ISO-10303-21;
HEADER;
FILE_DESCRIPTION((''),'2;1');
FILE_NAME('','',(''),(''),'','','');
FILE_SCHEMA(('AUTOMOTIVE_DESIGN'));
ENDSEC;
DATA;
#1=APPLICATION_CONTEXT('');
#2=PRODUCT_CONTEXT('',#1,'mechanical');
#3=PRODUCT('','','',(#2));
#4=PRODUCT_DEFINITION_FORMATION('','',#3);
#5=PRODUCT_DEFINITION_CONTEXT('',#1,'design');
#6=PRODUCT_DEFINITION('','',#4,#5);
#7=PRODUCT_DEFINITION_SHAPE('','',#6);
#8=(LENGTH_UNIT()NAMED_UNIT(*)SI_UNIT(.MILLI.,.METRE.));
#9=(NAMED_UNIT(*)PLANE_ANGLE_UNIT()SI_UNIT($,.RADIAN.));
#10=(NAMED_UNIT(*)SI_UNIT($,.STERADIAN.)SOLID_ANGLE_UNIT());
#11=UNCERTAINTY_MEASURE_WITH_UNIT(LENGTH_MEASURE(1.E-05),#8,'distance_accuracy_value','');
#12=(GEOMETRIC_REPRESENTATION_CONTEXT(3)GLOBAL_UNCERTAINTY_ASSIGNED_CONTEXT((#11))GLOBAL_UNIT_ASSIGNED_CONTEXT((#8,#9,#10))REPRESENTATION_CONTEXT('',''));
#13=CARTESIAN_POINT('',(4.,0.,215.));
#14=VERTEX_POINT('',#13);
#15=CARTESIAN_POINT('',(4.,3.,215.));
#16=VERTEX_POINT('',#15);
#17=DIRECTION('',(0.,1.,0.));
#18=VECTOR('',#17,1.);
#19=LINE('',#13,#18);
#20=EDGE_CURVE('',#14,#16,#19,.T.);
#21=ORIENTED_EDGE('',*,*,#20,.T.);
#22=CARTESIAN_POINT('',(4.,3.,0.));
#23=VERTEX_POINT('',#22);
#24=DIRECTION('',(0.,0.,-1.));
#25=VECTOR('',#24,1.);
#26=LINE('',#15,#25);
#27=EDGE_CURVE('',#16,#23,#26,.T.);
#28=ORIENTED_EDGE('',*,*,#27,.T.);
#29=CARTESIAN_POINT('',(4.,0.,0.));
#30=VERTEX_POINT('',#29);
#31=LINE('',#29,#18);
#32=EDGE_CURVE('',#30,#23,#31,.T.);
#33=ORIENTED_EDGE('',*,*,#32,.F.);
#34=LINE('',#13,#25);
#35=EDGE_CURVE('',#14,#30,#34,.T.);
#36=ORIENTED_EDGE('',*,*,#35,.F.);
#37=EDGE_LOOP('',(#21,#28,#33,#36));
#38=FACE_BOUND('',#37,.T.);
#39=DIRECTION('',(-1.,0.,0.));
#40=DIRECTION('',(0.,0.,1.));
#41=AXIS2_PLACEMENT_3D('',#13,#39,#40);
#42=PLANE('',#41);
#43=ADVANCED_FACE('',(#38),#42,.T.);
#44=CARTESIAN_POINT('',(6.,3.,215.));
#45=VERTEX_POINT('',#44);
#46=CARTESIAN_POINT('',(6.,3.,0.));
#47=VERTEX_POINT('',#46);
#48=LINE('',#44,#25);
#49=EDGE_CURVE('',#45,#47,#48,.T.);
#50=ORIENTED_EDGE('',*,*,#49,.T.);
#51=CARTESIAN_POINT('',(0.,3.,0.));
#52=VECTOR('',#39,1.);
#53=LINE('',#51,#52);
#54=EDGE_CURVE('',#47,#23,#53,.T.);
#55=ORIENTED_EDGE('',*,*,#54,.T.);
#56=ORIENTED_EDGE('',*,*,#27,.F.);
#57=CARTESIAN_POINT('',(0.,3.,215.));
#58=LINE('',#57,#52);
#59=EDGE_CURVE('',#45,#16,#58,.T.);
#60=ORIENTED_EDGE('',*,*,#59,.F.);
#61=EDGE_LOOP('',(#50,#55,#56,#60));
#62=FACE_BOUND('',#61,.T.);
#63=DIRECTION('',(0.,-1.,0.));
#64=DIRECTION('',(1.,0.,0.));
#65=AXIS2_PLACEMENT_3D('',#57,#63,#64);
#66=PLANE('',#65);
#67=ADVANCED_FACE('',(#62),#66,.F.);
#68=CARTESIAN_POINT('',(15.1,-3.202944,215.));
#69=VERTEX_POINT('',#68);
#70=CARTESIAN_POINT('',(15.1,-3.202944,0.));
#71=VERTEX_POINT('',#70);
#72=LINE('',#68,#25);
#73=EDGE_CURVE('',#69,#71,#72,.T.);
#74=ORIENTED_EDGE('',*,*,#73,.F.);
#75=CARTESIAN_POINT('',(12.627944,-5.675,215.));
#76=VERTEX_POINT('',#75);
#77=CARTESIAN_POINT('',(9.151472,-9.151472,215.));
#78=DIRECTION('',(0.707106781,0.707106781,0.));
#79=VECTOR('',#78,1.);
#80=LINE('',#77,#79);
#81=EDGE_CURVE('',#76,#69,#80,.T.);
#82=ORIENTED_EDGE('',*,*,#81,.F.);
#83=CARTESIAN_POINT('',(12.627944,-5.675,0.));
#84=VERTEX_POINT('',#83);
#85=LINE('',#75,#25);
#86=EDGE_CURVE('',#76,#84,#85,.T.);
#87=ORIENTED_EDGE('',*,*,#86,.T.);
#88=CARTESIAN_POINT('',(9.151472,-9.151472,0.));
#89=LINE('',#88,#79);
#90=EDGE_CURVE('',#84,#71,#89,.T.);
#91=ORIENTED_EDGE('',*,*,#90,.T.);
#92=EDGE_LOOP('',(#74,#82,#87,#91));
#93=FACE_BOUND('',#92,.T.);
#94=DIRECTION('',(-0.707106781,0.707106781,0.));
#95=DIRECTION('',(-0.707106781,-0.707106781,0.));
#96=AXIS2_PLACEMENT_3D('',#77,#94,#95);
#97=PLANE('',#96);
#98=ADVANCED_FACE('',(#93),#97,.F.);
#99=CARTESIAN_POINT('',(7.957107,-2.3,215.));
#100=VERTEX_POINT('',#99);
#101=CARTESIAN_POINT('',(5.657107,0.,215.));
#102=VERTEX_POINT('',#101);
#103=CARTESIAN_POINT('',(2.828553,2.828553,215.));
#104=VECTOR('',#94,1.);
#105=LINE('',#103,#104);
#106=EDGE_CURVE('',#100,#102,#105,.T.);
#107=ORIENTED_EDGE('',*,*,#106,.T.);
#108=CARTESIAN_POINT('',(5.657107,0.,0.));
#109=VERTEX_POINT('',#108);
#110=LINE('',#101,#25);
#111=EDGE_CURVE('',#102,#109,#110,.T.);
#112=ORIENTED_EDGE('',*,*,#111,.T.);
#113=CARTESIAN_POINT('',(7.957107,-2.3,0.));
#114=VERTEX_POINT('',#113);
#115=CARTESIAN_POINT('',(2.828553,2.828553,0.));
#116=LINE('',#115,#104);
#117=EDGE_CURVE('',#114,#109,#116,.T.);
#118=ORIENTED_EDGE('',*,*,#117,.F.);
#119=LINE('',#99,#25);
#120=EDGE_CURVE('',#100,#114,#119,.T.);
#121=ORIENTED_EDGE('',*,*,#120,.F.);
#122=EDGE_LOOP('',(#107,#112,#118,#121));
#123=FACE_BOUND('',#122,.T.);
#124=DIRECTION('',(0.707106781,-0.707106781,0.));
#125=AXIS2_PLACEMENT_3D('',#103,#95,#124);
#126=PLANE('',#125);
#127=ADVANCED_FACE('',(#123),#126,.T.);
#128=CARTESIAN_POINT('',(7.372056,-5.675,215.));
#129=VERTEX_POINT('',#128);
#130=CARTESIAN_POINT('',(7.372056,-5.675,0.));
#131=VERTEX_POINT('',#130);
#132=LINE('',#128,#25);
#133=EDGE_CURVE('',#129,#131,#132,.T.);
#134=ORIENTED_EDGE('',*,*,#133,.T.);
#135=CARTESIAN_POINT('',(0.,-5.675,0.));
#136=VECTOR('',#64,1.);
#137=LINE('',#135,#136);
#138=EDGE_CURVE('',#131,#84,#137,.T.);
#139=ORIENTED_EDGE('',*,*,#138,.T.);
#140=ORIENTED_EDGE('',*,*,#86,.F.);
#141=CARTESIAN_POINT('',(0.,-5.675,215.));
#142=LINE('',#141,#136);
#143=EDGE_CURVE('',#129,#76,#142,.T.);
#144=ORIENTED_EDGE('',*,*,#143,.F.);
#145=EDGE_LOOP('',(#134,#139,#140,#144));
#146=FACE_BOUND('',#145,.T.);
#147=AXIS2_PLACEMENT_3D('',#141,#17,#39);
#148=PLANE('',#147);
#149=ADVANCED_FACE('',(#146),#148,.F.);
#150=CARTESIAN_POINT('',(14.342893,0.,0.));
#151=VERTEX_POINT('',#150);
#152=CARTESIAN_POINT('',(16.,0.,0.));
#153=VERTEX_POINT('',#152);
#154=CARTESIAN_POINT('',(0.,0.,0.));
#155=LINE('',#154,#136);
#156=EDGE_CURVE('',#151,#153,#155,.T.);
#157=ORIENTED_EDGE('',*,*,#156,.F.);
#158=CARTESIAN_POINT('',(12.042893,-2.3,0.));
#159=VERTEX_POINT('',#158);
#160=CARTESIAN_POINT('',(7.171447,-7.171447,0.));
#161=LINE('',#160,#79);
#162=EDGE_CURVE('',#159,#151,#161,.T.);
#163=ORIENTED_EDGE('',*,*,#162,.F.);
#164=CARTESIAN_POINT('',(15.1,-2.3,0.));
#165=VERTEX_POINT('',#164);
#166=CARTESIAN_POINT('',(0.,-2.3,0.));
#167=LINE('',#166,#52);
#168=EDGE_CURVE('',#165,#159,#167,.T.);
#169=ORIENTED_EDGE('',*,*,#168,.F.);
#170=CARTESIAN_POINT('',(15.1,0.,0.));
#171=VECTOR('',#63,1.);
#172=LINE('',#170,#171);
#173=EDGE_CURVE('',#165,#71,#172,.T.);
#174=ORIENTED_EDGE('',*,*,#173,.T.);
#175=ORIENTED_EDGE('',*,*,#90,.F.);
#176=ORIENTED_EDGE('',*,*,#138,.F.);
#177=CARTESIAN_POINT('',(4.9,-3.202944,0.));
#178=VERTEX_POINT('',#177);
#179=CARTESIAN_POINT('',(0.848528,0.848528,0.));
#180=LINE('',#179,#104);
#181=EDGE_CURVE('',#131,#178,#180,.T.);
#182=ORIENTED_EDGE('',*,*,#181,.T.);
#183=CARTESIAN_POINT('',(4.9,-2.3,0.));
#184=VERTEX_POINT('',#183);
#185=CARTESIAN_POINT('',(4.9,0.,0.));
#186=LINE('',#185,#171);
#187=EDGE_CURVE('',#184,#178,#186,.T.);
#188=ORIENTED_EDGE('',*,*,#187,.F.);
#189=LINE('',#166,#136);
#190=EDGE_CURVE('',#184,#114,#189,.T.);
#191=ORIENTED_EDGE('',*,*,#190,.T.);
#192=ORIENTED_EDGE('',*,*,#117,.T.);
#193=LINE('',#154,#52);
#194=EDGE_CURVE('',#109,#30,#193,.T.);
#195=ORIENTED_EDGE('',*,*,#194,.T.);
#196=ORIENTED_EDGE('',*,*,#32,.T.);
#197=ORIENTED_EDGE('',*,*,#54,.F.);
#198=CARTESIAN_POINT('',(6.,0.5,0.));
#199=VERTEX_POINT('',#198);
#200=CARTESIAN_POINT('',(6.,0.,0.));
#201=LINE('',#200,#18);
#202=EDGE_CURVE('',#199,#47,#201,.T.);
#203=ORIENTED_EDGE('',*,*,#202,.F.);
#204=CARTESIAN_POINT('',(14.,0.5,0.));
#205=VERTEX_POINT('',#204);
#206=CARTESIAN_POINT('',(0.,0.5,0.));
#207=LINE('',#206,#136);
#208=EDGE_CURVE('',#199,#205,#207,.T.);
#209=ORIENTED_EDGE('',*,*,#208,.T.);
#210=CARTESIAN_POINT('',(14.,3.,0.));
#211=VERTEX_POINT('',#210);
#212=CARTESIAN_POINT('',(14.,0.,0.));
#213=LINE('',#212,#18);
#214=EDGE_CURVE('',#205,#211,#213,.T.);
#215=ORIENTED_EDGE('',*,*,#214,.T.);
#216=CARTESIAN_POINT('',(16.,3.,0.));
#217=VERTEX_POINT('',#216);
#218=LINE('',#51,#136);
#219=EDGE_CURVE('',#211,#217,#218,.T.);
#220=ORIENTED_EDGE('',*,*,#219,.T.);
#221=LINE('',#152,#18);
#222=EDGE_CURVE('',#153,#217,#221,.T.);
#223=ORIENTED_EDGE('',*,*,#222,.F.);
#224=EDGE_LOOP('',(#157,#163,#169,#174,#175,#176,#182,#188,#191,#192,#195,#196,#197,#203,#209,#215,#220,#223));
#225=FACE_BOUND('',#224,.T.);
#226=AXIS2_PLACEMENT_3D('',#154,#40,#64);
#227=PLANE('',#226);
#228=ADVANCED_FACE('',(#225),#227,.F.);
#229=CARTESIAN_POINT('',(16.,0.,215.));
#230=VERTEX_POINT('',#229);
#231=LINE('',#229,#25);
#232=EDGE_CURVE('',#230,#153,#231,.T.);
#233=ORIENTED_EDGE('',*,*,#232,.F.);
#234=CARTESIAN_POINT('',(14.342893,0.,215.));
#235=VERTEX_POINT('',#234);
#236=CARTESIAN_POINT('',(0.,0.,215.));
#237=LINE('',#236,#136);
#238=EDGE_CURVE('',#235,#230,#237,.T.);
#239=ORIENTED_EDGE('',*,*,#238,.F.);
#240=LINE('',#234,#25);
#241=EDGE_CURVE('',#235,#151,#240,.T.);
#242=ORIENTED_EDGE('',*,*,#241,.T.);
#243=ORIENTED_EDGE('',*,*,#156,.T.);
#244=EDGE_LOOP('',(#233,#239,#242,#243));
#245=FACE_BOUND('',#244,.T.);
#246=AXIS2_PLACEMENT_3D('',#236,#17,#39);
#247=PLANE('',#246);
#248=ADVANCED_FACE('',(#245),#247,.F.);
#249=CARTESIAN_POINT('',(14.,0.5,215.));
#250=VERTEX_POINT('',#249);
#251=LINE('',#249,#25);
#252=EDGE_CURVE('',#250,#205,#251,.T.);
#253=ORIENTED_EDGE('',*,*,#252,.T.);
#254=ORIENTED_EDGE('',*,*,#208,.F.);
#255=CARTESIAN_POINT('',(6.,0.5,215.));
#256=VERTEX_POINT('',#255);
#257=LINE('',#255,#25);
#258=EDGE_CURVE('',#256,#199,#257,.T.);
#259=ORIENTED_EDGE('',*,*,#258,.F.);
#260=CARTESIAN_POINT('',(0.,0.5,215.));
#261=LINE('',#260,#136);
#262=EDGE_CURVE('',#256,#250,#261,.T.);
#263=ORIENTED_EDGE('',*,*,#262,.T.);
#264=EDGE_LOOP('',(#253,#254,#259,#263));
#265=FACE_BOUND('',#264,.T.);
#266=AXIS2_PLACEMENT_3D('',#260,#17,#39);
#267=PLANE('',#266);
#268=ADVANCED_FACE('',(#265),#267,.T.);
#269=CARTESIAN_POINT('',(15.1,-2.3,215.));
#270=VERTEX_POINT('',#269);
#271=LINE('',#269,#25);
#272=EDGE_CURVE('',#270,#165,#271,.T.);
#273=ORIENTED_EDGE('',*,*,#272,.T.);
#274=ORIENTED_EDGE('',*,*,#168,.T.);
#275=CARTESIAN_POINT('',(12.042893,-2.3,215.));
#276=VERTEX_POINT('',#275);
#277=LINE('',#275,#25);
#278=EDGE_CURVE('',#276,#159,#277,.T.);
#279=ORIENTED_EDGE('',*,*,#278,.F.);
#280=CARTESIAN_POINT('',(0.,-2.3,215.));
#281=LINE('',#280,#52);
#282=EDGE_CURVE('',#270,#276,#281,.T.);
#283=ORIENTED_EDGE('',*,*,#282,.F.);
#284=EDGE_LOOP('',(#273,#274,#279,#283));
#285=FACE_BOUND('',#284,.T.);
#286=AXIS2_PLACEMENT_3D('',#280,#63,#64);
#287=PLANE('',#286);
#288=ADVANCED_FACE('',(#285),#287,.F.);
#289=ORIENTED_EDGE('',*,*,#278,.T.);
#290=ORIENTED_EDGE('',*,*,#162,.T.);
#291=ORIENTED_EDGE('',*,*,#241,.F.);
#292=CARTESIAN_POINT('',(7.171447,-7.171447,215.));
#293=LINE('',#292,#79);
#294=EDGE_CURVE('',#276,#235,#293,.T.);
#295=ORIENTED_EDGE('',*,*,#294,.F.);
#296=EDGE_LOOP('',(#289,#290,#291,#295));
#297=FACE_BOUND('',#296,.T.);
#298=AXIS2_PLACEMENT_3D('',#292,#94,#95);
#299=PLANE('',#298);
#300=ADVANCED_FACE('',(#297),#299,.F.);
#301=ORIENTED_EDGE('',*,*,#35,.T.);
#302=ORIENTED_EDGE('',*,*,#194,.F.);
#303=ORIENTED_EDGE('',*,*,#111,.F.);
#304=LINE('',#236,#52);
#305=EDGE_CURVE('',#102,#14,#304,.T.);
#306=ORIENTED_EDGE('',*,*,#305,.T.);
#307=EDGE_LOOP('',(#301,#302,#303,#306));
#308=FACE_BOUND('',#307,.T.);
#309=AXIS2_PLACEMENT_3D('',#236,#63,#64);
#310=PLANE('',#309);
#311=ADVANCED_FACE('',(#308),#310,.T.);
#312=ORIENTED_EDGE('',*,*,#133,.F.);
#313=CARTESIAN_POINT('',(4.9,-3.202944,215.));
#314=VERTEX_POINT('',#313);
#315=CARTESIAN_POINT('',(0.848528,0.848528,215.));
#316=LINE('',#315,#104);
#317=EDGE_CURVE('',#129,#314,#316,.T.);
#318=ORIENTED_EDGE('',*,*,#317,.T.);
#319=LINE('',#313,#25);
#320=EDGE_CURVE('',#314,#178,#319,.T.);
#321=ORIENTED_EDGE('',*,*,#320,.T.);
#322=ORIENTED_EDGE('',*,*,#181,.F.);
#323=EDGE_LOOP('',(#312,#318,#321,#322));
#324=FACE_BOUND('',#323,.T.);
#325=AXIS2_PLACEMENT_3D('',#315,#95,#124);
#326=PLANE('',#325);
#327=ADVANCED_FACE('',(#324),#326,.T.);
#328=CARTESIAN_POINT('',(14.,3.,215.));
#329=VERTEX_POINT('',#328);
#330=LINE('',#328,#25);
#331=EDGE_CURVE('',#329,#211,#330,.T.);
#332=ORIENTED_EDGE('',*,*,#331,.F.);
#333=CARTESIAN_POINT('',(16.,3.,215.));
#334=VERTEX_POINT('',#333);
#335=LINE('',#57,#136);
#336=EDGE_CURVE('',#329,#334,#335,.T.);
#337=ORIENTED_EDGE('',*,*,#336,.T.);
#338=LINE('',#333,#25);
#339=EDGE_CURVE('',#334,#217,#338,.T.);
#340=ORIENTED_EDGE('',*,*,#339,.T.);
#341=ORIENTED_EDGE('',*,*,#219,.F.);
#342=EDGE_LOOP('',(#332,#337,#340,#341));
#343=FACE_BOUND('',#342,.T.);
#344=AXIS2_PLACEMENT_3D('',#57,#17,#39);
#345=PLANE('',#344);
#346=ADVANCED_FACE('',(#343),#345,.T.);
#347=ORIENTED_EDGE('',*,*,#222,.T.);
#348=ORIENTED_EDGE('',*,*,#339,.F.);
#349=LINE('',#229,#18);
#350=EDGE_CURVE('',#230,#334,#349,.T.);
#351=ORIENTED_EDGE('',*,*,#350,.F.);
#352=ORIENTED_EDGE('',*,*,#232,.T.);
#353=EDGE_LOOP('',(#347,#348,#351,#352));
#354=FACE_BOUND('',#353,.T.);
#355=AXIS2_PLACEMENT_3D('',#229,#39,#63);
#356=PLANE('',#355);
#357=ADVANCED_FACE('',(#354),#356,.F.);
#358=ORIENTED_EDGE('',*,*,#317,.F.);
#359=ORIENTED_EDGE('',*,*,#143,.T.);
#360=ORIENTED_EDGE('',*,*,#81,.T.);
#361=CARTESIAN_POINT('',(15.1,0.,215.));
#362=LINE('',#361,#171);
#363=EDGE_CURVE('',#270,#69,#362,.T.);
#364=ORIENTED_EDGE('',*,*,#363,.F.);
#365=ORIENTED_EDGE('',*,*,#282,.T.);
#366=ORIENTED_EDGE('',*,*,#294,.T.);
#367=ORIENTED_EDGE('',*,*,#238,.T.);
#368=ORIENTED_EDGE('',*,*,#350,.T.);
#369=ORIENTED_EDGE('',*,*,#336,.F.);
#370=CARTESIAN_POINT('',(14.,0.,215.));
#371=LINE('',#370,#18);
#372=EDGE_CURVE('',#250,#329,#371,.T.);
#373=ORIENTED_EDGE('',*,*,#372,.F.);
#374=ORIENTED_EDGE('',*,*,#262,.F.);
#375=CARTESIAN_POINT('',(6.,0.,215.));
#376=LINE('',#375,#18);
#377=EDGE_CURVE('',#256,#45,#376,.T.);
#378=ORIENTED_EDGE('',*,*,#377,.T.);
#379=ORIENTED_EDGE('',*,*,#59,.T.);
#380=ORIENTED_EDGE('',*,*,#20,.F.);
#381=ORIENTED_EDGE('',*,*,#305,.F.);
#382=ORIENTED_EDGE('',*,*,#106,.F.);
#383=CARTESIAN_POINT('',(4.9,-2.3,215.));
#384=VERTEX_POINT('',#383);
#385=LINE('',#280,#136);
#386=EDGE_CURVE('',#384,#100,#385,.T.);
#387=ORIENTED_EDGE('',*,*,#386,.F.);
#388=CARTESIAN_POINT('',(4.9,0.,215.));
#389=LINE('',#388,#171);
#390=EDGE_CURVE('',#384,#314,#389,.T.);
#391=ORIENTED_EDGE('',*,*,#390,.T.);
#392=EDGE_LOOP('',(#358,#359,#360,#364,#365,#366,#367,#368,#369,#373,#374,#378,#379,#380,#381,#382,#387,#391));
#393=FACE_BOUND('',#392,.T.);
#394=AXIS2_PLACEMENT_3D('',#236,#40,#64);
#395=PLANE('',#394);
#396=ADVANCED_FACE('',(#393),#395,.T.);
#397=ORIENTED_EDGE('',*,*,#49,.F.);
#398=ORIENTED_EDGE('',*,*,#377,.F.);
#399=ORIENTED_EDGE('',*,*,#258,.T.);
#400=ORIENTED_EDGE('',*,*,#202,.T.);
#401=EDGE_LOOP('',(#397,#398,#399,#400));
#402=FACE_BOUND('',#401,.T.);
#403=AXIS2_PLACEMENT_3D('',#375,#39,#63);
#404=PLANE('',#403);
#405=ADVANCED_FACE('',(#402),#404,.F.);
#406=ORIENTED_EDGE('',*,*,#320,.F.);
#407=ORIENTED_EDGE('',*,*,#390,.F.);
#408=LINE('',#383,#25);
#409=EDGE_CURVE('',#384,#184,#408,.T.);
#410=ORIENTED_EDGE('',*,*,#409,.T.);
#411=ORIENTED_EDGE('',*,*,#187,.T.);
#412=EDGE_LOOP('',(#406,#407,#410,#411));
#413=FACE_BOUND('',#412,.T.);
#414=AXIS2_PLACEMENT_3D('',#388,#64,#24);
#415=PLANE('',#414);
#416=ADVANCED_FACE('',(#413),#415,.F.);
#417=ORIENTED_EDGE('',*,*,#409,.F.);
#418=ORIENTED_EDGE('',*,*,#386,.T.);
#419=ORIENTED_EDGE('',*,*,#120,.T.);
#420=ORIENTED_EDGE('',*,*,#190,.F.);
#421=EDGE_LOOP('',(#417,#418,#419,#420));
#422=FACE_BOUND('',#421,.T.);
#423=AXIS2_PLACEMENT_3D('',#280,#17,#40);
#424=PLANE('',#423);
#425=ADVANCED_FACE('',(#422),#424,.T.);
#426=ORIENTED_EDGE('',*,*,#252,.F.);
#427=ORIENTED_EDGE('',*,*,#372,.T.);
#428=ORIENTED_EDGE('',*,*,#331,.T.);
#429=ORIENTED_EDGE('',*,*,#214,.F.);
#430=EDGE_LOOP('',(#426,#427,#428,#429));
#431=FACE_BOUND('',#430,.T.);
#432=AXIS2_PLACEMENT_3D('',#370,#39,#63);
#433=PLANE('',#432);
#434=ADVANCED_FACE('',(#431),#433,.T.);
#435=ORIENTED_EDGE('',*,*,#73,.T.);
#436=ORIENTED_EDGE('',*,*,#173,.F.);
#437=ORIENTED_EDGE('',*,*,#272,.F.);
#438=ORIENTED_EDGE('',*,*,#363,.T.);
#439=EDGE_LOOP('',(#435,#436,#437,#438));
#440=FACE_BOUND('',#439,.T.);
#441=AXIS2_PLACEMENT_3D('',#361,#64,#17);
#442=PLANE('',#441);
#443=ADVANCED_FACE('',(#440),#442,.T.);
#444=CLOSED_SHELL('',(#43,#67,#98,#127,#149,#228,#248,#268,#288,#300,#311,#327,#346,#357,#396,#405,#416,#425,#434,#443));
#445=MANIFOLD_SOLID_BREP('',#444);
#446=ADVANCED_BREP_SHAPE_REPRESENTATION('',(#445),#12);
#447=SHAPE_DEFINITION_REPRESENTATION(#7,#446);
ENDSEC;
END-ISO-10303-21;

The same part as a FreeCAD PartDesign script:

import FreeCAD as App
import Part
import Sketcher

V = App.Vector
Q = App.Units.Quantity

doc = App.newDocument("Part")
params = doc.addObject("Spreadsheet::Sheet", "Params")
for row, (alias, value) in enumerate([
    ("sketch1_width", "2 mm"),
    ("sketch1_width2", "8 mm"),
    ("sketch1_height", "3 mm"),
    ("sketch1_height2", "2.5 mm"),
    ("pad1_length", "215 mm"),
], start=1):
    params.set(f"A{row}", alias)
    params.set(f"B{row}", "=" + value)
    params.setAlias(f"B{row}", alias)

body = doc.addObject("PartDesign::Body", "Body")

# Sketch on XY plane
sketch1 = body.newObject("Sketcher::SketchObject", "Sketch")
sketch1.AttachmentSupport = (doc.getObject("XY_Plane"), [""])
sketch1.MapMode = "FlatFace"
sketch1.addGeometry(Part.LineSegment(V(7.372056, -5.675, 0), V(12.627944, -5.675, 0)), False)
sketch1.addGeometry(Part.LineSegment(V(12.627944, -5.675, 0), V(15.1, -3.202944, 0)), False)
sketch1.addGeometry(Part.LineSegment(V(15.1, -3.202944, 0), V(15.1, -2.3, 0)), False)
sketch1.addGeometry(Part.LineSegment(V(15.1, -2.3, 0), V(12.042893, -2.3, 0)), False)
sketch1.addGeometry(Part.LineSegment(V(12.042893, -2.3, 0), V(14.342893, 0, 0)), False)
sketch1.addGeometry(Part.LineSegment(V(14.342893, 0, 0), V(16, 0, 0)), False)
sketch1.addGeometry(Part.LineSegment(V(16, 0, 0), V(16, 3, 0)), False)
sketch1.addGeometry(Part.LineSegment(V(16, 3, 0), V(14, 3, 0)), False)
sketch1.addGeometry(Part.LineSegment(V(14, 3, 0), V(14, 0.5, 0)), False)
sketch1.addGeometry(Part.LineSegment(V(14, 0.5, 0), V(6, 0.5, 0)), False)
sketch1.addGeometry(Part.LineSegment(V(6, 0.5, 0), V(6, 3, 0)), False)
sketch1.addGeometry(Part.LineSegment(V(6, 3, 0), V(4, 3, 0)), False)
sketch1.addGeometry(Part.LineSegment(V(4, 3, 0), V(4, 0, 0)), False)
sketch1.addGeometry(Part.LineSegment(V(4, 0, 0), V(5.657107, 0, 0)), False)
sketch1.addGeometry(Part.LineSegment(V(5.657107, 0, 0), V(7.957107, -2.3, 0)), False)
sketch1.addGeometry(Part.LineSegment(V(7.957107, -2.3, 0), V(4.9, -2.3, 0)), False)
sketch1.addGeometry(Part.LineSegment(V(4.9, -2.3, 0), V(4.9, -3.202944, 0)), False)
sketch1.addGeometry(Part.LineSegment(V(4.9, -3.202944, 0), V(7.372056, -5.675, 0)), False)
sketch1.addConstraint(Sketcher.Constraint("Coincident", 0, 2, 1, 1))
sketch1.addConstraint(Sketcher.Constraint("Coincident", 1, 2, 2, 1))
sketch1.addConstraint(Sketcher.Constraint("Coincident", 2, 2, 3, 1))
sketch1.addConstraint(Sketcher.Constraint("Coincident", 3, 2, 4, 1))
sketch1.addConstraint(Sketcher.Constraint("Coincident", 4, 2, 5, 1))
sketch1.addConstraint(Sketcher.Constraint("Coincident", 5, 2, 6, 1))
sketch1.addConstraint(Sketcher.Constraint("Coincident", 6, 2, 7, 1))
sketch1.addConstraint(Sketcher.Constraint("Coincident", 7, 2, 8, 1))
sketch1.addConstraint(Sketcher.Constraint("Coincident", 8, 2, 9, 1))
sketch1.addConstraint(Sketcher.Constraint("Coincident", 9, 2, 10, 1))
sketch1.addConstraint(Sketcher.Constraint("Coincident", 10, 2, 11, 1))
sketch1.addConstraint(Sketcher.Constraint("Coincident", 11, 2, 12, 1))
sketch1.addConstraint(Sketcher.Constraint("Coincident", 12, 2, 13, 1))
sketch1.addConstraint(Sketcher.Constraint("Coincident", 13, 2, 14, 1))
sketch1.addConstraint(Sketcher.Constraint("Coincident", 14, 2, 15, 1))
sketch1.addConstraint(Sketcher.Constraint("Coincident", 15, 2, 16, 1))
sketch1.addConstraint(Sketcher.Constraint("Coincident", 16, 2, 17, 1))
sketch1.addConstraint(Sketcher.Constraint("Coincident", 17, 2, 0, 1))
sketch1.addConstraint(Sketcher.Constraint("Horizontal", 0))
sketch1.addConstraint(Sketcher.Constraint("Vertical", 2))
sketch1.addConstraint(Sketcher.Constraint("Horizontal", 3))
sketch1.addConstraint(Sketcher.Constraint("Horizontal", 5))
sketch1.addConstraint(Sketcher.Constraint("Vertical", 6))
sketch1.addConstraint(Sketcher.Constraint("Horizontal", 7))
sketch1.addConstraint(Sketcher.Constraint("Vertical", 8))
sketch1.addConstraint(Sketcher.Constraint("Horizontal", 9))
sketch1.addConstraint(Sketcher.Constraint("Vertical", 10))
sketch1.addConstraint(Sketcher.Constraint("Horizontal", 11))
sketch1.addConstraint(Sketcher.Constraint("Vertical", 12))
sketch1.addConstraint(Sketcher.Constraint("Horizontal", 13))
sketch1.addConstraint(Sketcher.Constraint("Horizontal", 15))
sketch1.addConstraint(Sketcher.Constraint("Vertical", 16))
sketch1.addConstraint(Sketcher.Constraint("PointOnObject", 4, 2, -1))
sketch1.addConstraint(Sketcher.Constraint("PointOnObject", 12, 2, -1))
sketch1.addConstraint(Sketcher.Constraint("Parallel", 1, 4))
sketch1.addConstraint(Sketcher.Constraint("Perpendicular", 4, 14))
sketch1.addConstraint(Sketcher.Constraint("Parallel", 14, 17))
sketch1.addConstraint(Sketcher.Constraint("Horizontal", 7, 2, 10, 2))
sketch1.addConstraint(Sketcher.Constraint("Horizontal", 3, 2, 14, 2))
sketch1.addConstraint(Sketcher.Constraint("Horizontal", 1, 2, 16, 2))
sketch1.addConstraint(Sketcher.Constraint("Equal", 7, 11))
sketch1.addConstraint(Sketcher.Constraint("Equal", 5, 13))
sketch1.addConstraint(Sketcher.Constraint("Equal", 3, 15))
sketch1.addConstraint(Sketcher.Constraint("Equal", 4, 14))
sketch1.addConstraint(Sketcher.Constraint("DistanceX", 7, 2, 7, 1, Q("2 mm")))
sketch1.addConstraint(Sketcher.Constraint("DistanceX", 9, 2, 9, 1, Q("8 mm")))
sketch1.addConstraint(Sketcher.Constraint("DistanceY", 6, 1, 6, 2, Q("3 mm")))
sketch1.addConstraint(Sketcher.Constraint("DistanceY", 8, 2, 8, 1, Q("2.5 mm")))
sketch1.addConstraint(Sketcher.Constraint("DistanceX", -1, 1, 5, 2, Q("16 mm")))
sketch1.addConstraint(Sketcher.Constraint("DistanceX", -1, 1, 1, 2, Q("15.1 mm")))
sketch1.addConstraint(Sketcher.Constraint("DistanceY", 2, 2, -1, 1, Q("2.3 mm")))
sketch1.addConstraint(Sketcher.Constraint("DistanceY", 0, 2, -1, 1, Q("5.675 mm")))
sketch1.addConstraint(Sketcher.Constraint("DistanceX", 0, 1, 0, 2, Q("5.255887 mm")))
sketch1.addConstraint(Sketcher.Constraint("DistanceX", 3, 2, 3, 1, Q("3.057107 mm")))
sketch1.setExpression("Constraints[44]", "Params.sketch1_width")
sketch1.setExpression("Constraints[45]", "Params.sketch1_width2")
sketch1.setExpression("Constraints[46]", "Params.sketch1_height")
sketch1.setExpression("Constraints[47]", "Params.sketch1_height2")
pad1 = body.newObject("PartDesign::Pad", "Pad")
pad1.Profile = sketch1
pad1.setExpression("Length", "Params.pad1_length")

doc.recompute()
